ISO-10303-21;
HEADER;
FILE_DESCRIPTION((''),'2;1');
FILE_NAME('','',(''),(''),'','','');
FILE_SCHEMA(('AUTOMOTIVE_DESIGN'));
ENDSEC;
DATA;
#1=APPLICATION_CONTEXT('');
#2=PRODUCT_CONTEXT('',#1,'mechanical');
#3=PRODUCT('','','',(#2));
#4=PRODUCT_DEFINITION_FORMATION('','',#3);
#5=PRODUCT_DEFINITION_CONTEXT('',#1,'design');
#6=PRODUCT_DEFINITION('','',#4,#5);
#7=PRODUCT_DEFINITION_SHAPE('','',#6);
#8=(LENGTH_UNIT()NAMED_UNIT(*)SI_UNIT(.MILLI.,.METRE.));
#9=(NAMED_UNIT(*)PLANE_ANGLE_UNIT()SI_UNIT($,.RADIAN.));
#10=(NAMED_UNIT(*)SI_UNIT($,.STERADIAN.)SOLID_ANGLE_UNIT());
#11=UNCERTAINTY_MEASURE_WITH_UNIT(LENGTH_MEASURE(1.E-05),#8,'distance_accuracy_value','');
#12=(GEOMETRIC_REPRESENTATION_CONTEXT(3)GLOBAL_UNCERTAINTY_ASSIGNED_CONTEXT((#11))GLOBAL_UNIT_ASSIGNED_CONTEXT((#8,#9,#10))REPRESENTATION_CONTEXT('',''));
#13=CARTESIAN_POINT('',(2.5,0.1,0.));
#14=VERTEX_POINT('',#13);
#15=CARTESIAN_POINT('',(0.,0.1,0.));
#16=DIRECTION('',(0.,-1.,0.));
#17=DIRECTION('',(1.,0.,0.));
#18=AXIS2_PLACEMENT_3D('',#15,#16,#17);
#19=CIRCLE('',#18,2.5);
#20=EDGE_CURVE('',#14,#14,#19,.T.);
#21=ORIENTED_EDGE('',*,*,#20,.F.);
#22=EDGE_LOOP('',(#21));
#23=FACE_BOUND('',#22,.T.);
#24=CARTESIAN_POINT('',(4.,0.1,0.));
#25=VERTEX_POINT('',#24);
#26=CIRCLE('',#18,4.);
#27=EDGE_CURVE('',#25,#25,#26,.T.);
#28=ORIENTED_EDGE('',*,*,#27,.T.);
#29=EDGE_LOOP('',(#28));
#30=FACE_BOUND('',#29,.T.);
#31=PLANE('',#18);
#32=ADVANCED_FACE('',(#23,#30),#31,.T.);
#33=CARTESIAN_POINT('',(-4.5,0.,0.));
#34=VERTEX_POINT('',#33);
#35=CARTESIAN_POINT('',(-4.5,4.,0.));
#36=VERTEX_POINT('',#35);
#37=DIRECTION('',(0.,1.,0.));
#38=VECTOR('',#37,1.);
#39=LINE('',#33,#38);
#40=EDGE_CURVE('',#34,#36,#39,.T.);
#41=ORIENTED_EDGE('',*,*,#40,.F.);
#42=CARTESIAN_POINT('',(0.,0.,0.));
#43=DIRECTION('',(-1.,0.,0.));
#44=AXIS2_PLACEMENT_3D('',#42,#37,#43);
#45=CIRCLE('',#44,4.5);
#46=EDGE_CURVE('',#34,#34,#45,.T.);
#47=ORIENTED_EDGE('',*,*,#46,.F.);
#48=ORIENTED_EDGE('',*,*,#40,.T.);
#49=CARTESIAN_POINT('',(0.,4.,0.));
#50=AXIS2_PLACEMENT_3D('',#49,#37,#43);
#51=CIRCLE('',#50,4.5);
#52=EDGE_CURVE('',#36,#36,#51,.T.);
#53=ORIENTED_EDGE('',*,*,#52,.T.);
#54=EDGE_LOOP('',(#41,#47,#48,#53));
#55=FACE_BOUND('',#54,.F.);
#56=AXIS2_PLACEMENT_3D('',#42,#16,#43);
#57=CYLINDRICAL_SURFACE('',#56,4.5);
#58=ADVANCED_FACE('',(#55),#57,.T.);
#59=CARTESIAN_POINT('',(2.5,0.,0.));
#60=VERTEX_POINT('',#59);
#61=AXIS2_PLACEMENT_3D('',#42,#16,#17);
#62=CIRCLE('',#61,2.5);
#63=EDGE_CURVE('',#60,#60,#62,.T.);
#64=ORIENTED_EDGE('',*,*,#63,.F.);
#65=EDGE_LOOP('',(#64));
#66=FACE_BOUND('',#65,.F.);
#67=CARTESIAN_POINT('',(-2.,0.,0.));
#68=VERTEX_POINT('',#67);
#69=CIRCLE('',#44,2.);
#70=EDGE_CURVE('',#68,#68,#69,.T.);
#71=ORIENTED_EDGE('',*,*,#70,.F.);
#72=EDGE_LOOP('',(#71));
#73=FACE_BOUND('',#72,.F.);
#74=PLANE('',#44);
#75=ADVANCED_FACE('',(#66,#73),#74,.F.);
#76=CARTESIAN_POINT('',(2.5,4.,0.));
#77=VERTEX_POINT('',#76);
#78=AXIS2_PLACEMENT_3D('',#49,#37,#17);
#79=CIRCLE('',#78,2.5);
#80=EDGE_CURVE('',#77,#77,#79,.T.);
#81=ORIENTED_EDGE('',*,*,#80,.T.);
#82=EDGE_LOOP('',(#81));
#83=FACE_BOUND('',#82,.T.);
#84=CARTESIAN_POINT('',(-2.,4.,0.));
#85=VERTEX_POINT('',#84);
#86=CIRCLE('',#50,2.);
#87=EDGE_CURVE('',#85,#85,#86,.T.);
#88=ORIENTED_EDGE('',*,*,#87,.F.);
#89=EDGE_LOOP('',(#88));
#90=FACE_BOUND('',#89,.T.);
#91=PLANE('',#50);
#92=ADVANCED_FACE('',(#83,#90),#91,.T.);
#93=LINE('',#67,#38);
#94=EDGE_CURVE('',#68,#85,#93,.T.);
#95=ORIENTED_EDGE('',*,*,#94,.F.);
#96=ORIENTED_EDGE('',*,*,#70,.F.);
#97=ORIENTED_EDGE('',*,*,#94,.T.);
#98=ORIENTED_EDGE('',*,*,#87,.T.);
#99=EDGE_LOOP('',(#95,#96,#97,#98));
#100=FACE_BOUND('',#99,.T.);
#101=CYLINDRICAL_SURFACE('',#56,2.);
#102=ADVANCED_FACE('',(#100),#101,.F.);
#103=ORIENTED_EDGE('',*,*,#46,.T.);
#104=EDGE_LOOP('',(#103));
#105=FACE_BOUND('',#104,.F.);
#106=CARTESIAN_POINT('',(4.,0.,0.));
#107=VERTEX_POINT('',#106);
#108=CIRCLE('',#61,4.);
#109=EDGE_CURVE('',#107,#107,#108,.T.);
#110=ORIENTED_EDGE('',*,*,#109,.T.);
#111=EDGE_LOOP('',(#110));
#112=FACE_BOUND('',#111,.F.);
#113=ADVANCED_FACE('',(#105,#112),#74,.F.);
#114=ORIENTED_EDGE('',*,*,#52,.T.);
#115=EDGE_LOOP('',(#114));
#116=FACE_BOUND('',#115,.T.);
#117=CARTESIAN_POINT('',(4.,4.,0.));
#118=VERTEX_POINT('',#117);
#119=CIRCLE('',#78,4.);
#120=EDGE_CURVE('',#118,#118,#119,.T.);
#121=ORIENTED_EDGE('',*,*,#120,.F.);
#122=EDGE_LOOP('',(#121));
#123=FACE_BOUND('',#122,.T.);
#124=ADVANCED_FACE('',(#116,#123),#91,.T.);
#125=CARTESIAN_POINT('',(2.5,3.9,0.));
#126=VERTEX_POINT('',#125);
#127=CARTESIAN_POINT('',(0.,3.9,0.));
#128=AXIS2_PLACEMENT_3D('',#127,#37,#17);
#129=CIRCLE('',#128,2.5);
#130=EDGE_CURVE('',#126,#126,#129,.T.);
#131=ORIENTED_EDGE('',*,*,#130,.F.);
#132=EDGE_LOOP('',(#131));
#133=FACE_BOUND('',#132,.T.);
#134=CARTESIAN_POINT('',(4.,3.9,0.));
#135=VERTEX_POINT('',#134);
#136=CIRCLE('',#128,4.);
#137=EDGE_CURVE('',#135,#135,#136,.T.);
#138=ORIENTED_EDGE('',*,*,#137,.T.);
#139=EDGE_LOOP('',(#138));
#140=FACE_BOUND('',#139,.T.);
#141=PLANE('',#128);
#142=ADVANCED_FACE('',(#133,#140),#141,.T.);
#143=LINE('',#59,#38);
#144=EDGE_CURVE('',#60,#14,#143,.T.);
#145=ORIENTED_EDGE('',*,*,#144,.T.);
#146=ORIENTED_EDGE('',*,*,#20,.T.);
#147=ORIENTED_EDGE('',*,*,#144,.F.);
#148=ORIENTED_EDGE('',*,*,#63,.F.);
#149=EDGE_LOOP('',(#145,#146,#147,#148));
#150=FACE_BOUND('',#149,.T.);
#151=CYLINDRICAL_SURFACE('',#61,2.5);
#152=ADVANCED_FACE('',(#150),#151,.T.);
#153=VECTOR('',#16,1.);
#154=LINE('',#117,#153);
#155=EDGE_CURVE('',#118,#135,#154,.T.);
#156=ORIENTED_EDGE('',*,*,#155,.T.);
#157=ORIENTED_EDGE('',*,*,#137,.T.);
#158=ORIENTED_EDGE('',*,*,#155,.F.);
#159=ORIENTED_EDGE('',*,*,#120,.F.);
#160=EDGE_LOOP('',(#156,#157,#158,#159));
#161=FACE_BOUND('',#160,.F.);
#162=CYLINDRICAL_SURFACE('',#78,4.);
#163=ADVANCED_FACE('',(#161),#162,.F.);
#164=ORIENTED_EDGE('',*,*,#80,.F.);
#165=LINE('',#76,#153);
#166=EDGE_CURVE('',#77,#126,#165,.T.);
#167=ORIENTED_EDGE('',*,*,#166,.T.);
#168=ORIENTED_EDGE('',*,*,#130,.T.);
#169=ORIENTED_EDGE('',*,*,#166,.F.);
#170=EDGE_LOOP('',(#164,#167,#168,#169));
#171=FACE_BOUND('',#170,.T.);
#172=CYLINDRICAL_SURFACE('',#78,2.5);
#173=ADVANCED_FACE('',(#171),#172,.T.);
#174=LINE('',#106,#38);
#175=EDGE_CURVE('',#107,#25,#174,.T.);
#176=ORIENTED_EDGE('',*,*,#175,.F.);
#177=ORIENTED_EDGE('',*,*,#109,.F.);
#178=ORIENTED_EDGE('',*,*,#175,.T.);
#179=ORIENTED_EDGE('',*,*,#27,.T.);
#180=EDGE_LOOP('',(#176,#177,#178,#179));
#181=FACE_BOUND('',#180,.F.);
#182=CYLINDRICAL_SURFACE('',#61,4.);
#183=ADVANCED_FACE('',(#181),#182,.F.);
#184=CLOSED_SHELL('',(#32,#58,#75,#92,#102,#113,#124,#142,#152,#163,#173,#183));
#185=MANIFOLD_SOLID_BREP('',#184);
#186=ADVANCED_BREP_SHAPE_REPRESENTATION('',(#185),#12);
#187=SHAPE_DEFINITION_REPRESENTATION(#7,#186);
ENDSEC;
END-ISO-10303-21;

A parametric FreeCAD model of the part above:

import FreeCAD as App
import Part
import Sketcher
Q = App.Units.Quantity

doc = App.newDocument("Part")
body = doc.addObject("PartDesign::Body", "Body")

# Sketch on XZ plane
sketch1 = doc.addObject("Sketcher::SketchObject", "Sketch")
body.addObject(sketch1)
sketch1.AttachmentSupport = (doc.XZ_Plane, [""])
sketch1.MapMode = "FlatFace"
sketch1.addGeometry([
    Part.Circle(App.Vector(0, 0, 0), App.Vector(0, 0, 1), 4.5),
    Part.Circle(App.Vector(0, 0, 0), App.Vector(0, 0, 1), 2),
], False)
sketch1.addConstraint([
    Sketcher.Constraint("Coincident", 0, 3, -1, 1),
    Sketcher.Constraint("Coincident", 1, 3, -1, 1),
    Sketcher.Constraint("Diameter", 0, Q("9 mm")),
    Sketcher.Constraint("Diameter", 1, Q("4 mm")),
])
pad1 = doc.addObject("PartDesign::Pad", "Pad")
body.addObject(pad1)
pad1.Profile = sketch1
pad1.Length = 4
pad1.Reversed = True

# Sketch on XZ plane
sketch2 = doc.addObject("Sketcher::SketchObject", "Sketch001")
body.addObject(sketch2)
sketch2.AttachmentSupport = (doc.XZ_Plane, [""])
sketch2.MapMode = "FlatFace"
sketch2.AttachmentOffset = App.Placement(App.Vector(0, 0, -4), App.Rotation())
sketch2.addGeometry([
    Part.Circle(App.Vector(0, 0, 0), App.Vector(0, 0, 1), 4),
    Part.Circle(App.Vector(0, 0, 0), App.Vector(0, 0, 1), 2.5),
], False)
sketch2.addConstraint([
    Sketcher.Constraint("Coincident", 0, 3, -1, 1),
    Sketcher.Constraint("Coincident", 1, 3, -1, 1),
    Sketcher.Constraint("Diameter", 0, Q("8 mm")),
    Sketcher.Constraint("Diameter", 1, Q("5 mm")),
])
pocket1 = doc.addObject("PartDesign::Pocket", "Pocket")
body.addObject(pocket1)
pocket1.Profile = sketch2
pocket1.Length = 0.1
pocket1.Reversed = True

# Sketch on XZ plane
sketch3 = doc.addObject("Sketcher::SketchObject", "Sketch002")
body.addObject(sketch3)
sketch3.AttachmentSupport = (doc.XZ_Plane, [""])
sketch3.MapMode = "FlatFace"
sketch3.addGeometry([
    Part.Circle(App.Vector(0, 0, 0), App.Vector(0, 0, 1), 4),
    Part.Circle(App.Vector(0, 0, 0), App.Vector(0, 0, 1), 2.5),
], False)
sketch3.addConstraint([
    Sketcher.Constraint("Coincident", 0, 3, -1, 1),
    Sketcher.Constraint("Coincident", 1, 3, -1, 1),
    Sketcher.Constraint("Diameter", 0, Q("8 mm")),
    Sketcher.Constraint("Diameter", 1, Q("5 mm")),
])
pocket2 = doc.addObject("PartDesign::Pocket", "Pocket001")
body.addObject(pocket2)
pocket2.Profile = sketch3
pocket2.Length = 0.1

doc.recompute()
